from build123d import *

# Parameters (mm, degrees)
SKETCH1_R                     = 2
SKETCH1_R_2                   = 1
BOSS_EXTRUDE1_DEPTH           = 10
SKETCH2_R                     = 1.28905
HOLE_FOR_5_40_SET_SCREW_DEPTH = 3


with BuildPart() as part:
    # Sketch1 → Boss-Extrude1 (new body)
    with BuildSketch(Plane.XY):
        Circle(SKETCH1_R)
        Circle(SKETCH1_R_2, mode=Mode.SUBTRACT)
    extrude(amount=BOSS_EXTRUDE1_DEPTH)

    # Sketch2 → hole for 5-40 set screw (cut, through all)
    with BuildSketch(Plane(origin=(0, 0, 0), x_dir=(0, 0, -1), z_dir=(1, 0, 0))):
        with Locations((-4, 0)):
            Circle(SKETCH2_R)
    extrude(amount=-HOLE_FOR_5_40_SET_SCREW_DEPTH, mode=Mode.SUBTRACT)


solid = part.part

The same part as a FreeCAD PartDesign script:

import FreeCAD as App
import Part
import Sketcher
from FreeCAD import Vector
Q = App.Units.Quantity

doc = App.newDocument("Part")
body = doc.addObject("PartDesign::Body", "Body")

# Sketch on XY plane
sketch1 = body.newObject("Sketcher::SketchObject", "Sketch")
sketch1.AttachmentSupport = (doc.getObject("XY_Plane"), [""])
sketch1.MapMode = "FlatFace"
sketch1.addGeometry(Part.Circle(Vector(0, 0, 0), Vector(0, 0, 1), 2), False)
sketch1.addGeometry(Part.Circle(Vector(0, 0, 0), Vector(0, 0, 1), 1), False)
sketch1.addConstraint(Sketcher.Constraint("Coincident", 0, 3, -1, 1))
sketch1.addConstraint(Sketcher.Constraint("Coincident", 1, 3, -1, 1))
sketch1.addConstraint(Sketcher.Constraint("Diameter", 0, Q("4 mm")))
sketch1.addConstraint(Sketcher.Constraint("Diameter", 1, Q("2 mm")))
pad1 = body.newObject("PartDesign::Pad", "Pad")
pad1.Profile = sketch1
pad1.Length = 10

# Sketch on YZ plane
sketch2 = body.newObject("Sketcher::SketchObject", "Sketch001")
sketch2.AttachmentSupport = (doc.getObject("YZ_Plane"), [""])
sketch2.MapMode = "FlatFace"
sketch2.addGeometry(Part.Circle(Vector(0, 4, 0), Vector(0, 0, 1), 1.3), False)
sketch2.addConstraint(Sketcher.Constraint("PointOnObject", 0, 3, -2))
sketch2.addConstraint(Sketcher.Constraint("DistanceY", -1, 1, 0, 3, Q("4 mm")))
sketch2.addConstraint(Sketcher.Constraint("Diameter", 0, Q("2.5781 mm")))
pocket1 = body.newObject("PartDesign::Pocket", "Pocket")
pocket1.Profile = sketch2
pocket1.Type = "ThroughAll"

doc.recompute()
